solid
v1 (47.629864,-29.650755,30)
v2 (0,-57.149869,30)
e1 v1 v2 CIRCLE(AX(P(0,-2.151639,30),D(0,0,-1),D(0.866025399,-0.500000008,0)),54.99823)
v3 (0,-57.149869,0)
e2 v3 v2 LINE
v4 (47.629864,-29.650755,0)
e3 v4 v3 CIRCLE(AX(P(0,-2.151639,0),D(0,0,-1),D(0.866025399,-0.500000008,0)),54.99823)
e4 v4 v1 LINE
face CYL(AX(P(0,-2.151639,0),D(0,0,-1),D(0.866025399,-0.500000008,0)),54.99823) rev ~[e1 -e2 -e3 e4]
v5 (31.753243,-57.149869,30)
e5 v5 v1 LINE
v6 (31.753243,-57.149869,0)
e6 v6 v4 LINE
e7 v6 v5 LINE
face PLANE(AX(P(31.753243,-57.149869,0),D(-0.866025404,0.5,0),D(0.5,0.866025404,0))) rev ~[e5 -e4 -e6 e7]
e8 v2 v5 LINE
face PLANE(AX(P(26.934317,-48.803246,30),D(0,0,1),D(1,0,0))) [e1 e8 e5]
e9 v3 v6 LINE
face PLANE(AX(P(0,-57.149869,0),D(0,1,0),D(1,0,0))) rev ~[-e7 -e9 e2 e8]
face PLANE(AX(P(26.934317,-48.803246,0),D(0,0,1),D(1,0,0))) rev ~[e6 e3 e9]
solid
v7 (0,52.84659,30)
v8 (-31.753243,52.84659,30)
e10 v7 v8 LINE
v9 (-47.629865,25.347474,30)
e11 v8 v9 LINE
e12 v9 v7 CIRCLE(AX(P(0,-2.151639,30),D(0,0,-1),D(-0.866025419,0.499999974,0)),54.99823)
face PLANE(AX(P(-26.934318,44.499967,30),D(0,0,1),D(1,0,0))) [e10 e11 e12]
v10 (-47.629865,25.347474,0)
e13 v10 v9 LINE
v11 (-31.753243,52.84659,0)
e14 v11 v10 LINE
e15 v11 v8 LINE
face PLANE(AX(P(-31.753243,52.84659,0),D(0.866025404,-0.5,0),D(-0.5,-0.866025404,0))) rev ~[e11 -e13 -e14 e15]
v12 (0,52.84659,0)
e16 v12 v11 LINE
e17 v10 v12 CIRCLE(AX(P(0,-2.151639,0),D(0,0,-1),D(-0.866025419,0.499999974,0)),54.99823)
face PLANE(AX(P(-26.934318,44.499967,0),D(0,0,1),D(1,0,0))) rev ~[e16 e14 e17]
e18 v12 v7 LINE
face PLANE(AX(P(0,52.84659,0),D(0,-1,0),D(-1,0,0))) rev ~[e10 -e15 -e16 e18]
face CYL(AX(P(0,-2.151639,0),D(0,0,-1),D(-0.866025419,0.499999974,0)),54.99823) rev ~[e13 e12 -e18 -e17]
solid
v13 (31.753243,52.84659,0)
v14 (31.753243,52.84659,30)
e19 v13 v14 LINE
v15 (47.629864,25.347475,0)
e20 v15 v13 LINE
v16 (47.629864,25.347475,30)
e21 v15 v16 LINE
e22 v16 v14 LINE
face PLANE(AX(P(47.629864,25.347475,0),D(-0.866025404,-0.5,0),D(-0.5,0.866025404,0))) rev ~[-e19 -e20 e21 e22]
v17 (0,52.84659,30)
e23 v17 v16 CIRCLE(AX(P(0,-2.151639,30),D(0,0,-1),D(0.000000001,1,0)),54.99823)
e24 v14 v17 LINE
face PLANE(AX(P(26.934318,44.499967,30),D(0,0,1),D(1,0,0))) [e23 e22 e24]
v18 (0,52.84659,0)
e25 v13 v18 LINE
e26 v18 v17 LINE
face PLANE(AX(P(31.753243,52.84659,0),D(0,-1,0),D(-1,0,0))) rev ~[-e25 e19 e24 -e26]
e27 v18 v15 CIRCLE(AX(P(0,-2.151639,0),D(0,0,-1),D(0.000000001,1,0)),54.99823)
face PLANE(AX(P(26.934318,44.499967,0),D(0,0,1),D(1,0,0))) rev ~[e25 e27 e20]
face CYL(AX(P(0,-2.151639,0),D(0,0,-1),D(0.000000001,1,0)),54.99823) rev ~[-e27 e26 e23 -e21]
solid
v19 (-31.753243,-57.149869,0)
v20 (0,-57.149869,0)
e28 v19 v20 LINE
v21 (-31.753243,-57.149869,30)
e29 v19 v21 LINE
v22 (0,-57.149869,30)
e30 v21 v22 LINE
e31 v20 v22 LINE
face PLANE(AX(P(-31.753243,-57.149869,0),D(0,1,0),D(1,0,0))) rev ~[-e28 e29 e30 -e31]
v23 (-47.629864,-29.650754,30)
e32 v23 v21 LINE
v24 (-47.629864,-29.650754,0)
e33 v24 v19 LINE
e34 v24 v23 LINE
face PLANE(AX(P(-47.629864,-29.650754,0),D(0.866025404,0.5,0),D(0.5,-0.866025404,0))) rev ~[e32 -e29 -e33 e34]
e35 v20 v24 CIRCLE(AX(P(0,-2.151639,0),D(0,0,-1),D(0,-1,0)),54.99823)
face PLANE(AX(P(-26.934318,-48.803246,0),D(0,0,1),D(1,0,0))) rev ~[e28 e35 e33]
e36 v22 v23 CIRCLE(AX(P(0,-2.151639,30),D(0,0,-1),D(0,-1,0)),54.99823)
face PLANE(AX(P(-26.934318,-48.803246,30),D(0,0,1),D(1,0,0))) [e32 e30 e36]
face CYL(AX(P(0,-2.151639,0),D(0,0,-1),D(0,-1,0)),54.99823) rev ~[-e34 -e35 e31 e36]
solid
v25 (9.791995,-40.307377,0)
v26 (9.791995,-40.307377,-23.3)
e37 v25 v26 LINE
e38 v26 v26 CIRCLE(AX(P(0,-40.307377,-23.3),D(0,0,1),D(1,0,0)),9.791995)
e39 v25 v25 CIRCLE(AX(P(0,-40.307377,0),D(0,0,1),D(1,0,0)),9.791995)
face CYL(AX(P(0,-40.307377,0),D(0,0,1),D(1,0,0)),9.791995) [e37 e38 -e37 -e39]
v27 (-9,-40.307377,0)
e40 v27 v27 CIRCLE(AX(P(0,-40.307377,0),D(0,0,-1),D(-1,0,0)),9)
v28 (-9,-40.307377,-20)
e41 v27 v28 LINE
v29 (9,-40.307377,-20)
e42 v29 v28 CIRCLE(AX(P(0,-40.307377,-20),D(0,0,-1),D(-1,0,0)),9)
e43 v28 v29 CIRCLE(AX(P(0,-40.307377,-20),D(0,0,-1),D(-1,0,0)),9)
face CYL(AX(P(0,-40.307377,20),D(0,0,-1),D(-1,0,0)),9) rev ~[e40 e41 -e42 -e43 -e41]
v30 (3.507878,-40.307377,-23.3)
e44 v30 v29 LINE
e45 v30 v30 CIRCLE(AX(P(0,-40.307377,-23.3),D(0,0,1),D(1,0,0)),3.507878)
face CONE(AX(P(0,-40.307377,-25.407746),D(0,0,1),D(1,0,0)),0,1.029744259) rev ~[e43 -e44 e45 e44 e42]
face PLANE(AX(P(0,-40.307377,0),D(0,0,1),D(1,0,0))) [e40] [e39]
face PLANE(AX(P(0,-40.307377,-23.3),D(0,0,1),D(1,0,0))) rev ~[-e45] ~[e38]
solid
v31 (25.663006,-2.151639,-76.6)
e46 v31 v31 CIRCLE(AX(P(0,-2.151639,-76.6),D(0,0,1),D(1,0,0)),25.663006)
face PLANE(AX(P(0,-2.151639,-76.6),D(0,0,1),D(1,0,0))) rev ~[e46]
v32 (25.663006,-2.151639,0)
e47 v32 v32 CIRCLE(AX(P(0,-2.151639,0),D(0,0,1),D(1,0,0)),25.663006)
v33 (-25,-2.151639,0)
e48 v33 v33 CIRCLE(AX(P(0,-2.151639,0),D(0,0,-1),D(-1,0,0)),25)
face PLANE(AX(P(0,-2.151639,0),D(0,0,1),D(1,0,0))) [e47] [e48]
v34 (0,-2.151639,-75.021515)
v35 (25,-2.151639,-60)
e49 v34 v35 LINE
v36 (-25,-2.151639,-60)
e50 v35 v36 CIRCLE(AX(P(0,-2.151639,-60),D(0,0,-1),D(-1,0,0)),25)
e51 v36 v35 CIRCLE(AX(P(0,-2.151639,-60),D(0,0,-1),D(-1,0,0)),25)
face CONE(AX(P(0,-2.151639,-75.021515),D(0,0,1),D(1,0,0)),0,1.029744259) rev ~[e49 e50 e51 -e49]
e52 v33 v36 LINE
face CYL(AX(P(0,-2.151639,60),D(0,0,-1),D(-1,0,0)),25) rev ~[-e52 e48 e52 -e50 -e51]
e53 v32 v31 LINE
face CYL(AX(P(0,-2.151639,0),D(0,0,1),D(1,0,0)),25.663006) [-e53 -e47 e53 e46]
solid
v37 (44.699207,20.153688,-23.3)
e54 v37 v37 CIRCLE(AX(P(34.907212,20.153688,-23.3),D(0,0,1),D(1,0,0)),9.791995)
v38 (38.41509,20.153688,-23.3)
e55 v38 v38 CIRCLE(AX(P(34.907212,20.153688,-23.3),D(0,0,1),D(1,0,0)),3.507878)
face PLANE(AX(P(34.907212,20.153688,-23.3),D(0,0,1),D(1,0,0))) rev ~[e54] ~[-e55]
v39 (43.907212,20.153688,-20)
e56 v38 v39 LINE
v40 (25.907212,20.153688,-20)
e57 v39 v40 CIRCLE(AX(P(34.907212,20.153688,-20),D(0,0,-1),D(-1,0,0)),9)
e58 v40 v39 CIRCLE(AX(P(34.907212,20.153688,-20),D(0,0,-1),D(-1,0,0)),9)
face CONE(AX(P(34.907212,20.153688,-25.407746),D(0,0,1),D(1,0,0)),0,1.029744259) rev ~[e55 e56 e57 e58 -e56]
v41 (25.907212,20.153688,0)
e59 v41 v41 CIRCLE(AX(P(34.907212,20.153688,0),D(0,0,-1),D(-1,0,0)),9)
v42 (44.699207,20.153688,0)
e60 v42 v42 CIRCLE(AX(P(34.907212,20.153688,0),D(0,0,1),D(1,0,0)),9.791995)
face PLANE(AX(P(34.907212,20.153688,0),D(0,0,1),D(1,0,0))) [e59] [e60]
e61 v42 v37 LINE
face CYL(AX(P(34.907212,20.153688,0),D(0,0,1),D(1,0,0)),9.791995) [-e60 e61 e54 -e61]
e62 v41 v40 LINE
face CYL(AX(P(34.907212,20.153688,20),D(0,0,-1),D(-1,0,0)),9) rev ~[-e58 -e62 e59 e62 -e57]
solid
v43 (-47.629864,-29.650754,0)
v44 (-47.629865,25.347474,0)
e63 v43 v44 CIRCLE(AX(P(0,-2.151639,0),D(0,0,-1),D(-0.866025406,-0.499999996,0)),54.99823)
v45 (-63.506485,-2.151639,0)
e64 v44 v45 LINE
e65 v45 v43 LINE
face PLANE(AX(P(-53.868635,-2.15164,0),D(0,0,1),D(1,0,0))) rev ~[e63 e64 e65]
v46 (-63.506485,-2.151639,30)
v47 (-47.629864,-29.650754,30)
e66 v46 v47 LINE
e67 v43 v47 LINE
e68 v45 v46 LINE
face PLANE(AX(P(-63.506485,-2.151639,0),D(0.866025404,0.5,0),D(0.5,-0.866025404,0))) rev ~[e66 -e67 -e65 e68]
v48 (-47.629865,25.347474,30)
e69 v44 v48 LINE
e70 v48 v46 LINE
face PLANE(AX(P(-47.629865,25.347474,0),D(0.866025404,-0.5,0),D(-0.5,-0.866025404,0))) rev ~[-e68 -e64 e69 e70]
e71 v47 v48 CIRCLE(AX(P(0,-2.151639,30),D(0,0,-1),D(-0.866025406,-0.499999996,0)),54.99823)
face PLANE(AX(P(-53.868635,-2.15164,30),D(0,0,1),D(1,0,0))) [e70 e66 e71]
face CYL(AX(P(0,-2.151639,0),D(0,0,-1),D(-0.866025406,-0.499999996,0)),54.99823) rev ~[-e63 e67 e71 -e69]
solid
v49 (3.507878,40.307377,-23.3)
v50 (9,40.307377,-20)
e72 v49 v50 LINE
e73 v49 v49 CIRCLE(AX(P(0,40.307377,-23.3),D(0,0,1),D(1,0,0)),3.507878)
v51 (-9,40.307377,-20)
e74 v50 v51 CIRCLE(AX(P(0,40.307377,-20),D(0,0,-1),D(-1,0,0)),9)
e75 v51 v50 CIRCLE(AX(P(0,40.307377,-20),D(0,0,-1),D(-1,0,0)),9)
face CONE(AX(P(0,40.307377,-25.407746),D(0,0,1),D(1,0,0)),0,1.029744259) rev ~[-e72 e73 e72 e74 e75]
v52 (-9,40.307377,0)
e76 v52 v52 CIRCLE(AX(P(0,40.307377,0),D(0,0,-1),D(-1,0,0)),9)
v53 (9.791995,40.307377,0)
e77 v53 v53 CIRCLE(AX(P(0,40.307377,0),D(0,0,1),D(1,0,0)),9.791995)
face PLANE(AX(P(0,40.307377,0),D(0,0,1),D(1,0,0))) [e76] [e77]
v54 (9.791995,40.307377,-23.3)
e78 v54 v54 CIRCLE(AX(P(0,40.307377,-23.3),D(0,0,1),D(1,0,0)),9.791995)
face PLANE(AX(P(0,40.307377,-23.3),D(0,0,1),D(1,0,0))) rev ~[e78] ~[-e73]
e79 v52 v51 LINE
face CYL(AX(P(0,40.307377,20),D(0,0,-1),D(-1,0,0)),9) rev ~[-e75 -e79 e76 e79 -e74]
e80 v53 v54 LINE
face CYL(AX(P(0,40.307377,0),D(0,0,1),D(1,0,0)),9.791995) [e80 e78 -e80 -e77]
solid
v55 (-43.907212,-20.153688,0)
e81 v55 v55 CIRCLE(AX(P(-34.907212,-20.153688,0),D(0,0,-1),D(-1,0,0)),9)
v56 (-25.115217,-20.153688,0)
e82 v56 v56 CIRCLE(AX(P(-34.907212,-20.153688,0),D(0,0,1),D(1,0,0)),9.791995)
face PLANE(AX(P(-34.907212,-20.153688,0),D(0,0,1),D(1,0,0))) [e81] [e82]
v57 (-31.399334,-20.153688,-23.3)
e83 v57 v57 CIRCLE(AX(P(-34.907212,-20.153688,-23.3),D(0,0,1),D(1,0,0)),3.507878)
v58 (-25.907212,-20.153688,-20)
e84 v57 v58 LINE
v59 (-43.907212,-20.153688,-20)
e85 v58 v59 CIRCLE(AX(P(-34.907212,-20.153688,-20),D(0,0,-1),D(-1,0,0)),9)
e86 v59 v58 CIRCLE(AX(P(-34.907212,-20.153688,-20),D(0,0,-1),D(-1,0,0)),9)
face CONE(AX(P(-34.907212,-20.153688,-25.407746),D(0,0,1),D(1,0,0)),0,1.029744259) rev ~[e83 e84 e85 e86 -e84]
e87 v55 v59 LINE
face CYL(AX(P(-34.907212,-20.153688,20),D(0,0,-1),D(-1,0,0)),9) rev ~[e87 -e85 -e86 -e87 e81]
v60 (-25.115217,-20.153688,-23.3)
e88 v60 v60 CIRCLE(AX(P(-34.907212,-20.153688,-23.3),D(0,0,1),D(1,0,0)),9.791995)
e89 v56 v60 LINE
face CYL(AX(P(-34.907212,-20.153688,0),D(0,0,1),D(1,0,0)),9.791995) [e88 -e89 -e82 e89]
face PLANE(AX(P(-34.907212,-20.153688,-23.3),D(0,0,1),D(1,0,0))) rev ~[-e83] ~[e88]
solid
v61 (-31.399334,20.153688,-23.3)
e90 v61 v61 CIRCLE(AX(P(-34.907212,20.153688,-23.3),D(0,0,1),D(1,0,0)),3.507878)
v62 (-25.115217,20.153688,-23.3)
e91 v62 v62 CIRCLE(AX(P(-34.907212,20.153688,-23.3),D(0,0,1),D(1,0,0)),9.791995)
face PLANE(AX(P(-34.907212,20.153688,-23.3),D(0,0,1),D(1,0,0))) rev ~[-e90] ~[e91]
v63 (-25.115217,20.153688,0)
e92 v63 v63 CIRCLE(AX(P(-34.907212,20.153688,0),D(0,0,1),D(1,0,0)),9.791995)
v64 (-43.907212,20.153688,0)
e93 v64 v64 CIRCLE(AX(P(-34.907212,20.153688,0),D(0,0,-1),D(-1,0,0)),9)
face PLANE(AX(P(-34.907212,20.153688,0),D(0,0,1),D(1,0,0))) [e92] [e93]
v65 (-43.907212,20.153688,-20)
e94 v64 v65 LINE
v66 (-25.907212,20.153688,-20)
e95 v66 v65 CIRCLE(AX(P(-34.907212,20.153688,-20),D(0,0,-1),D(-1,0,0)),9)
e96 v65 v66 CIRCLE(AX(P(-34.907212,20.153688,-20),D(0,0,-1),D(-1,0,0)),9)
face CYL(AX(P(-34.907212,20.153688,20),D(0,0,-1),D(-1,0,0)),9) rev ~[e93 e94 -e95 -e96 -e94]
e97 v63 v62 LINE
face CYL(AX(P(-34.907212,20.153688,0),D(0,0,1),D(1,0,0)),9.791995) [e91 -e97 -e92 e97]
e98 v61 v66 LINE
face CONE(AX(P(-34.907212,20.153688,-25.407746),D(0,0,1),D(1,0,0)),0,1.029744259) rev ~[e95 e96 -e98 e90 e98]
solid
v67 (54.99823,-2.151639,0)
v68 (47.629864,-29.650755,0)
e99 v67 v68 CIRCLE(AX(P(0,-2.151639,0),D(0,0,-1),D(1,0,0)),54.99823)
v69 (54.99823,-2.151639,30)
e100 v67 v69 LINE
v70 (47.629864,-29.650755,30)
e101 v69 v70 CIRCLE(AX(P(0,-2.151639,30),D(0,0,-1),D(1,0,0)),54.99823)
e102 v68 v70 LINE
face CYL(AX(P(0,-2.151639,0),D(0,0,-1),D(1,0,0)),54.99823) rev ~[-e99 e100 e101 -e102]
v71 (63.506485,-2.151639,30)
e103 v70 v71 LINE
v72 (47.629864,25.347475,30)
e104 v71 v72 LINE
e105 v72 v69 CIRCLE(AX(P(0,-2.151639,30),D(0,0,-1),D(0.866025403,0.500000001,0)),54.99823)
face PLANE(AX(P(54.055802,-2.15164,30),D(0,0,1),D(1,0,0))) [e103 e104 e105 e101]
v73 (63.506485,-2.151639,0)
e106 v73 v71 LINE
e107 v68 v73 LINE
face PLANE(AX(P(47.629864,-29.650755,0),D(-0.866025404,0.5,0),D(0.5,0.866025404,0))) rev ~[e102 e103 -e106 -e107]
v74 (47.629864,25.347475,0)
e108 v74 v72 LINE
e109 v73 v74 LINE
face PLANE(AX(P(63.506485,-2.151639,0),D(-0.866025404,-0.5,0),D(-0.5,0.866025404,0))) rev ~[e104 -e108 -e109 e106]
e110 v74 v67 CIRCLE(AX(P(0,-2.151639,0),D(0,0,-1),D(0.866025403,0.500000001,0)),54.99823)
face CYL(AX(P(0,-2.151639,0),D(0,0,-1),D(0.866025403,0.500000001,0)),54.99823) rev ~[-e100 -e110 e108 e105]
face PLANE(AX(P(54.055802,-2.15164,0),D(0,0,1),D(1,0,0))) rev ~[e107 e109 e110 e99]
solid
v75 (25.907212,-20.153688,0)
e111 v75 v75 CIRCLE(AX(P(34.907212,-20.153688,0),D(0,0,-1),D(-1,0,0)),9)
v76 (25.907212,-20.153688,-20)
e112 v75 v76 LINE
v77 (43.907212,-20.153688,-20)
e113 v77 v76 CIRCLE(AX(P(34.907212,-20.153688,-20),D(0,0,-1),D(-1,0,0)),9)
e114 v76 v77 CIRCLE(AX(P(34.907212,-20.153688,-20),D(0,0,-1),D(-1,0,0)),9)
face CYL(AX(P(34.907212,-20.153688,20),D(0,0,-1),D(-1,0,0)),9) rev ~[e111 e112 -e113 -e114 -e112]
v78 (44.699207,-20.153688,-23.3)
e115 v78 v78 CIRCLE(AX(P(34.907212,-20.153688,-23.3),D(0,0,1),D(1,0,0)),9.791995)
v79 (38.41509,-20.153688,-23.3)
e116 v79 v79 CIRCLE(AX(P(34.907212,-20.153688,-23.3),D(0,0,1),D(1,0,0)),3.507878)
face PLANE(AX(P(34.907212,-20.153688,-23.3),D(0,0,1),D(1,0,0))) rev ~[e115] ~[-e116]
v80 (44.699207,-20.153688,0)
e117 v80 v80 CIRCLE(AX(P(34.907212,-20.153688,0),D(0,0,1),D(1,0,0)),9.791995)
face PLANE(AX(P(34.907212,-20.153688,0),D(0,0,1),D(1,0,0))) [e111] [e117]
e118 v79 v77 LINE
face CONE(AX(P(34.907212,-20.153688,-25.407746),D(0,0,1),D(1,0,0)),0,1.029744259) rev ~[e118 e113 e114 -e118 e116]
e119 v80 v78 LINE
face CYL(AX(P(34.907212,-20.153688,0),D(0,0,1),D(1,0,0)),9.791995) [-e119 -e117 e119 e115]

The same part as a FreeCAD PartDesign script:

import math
import FreeCAD as App
import Part
import Sketcher
from FreeCAD import Vector
Q = App.Units.Quantity

doc = App.newDocument("Part")
body = doc.addObject("PartDesign::Body", "Body")

sketch1 = body.newObject("Sketcher::SketchObject", "Sketch")
sketch1.AttachmentSupport = (doc.getObject("XY_Plane"), [""])
sketch1.MapMode = "FlatFace"
sketch1.addGeometry(Part.Circle(Vector(0, -2, 0), Vector(0, 0, 1), 26), False)
sketch1.addConstraint(Sketcher.Constraint("PointOnObject", 0, 3, -2))
sketch1.addConstraint(Sketcher.Constraint("Diameter", 0, Q("51.326012 mm")))
sketch1.addConstraint(Sketcher.Constraint("DistanceY", 0, 3, -1, 1, Q("2.151639 mm")))
pad1 = body.newObject("PartDesign::Pad", "Pad")
pad1.Profile = sketch1
pad1.Length = 76.6
pad1.Reversed = True

sketch2 = body.newObject("Sketcher::SketchObject", "Sketch001")
sketch2.AttachmentSupport = (doc.getObject("XY_Plane"), [""])
sketch2.MapMode = "FlatFace"
sketch2.addGeometry(Part.Circle(Vector(0, -2, 0), Vector(0, 0, 1), 25), False)
sketch2.addConstraint(Sketcher.Constraint("PointOnObject", 0, 3, -2))
sketch2.addConstraint(Sketcher.Constraint("Diameter", 0, Q("50 mm")))
sketch2.addConstraint(Sketcher.Constraint("DistanceY", 0, 3, -1, 1, Q("2.151639 mm")))
doc.recompute()
hole = body.newObject("PartDesign::Hole", "Hole")
hole.Profile = sketch2
hole.ThreadType = "None"
hole.Diameter = 50
hole.DepthType = "Dimension"
hole.Depth = 60
hole.DrillPoint = "Angled"
hole.DrillPointAngle = 118
body2 = doc.addObject("PartDesign::Body", "Body001")

sketch3 = body2.newObject("Sketcher::SketchObject", "Sketch002")
sketch3.AttachmentSupport = (doc.getObject("XY_Plane001"), [""])
sketch3.MapMode = "FlatFace"
sketch3.addGeometry(Part.ArcOfCircle(Part.Circle(Vector(0, -2, 0), Vector(0, 0, 1), 55), math.radians(90), math.radians(150)), False)
sketch3.addGeometry(Part.LineSegment(Vector(0, 53, 0), Vector(-32, 53, 0)), False)
sketch3.addGeometry(Part.LineSegment(Vector(-32, 53, 0), Vector(-48, 25, 0)), False)
sketch3.addConstraint(Sketcher.Constraint("Tangent", 0, 1, 1, 1))
sketch3.addConstraint(Sketcher.Constraint("Coincident", 1, 2, 2, 1))
sketch3.addConstraint(Sketcher.Constraint("Tangent", 2, 2, 0, 2))
sketch3.addConstraint(Sketcher.Constraint("Horizontal", 1))
sketch3.addConstraint(Sketcher.Constraint("PointOnObject", 0, 3, -2))
sketch3.addConstraint(Sketcher.Constraint("Angle", 2, Q("-120 deg")))
sketch3.addConstraint(Sketcher.Constraint("Radius", 0, Q("54.99823 mm")))
sketch3.addConstraint(Sketcher.Constraint("DistanceY", 0, 3, -1, 1, Q("2.151639 mm")))
pad2 = body2.newObject("PartDesign::Pad", "Pad001")
pad2.Profile = sketch3
pad2.Length = 30
body3 = doc.addObject("PartDesign::Body", "Body002")

sketch4 = body3.newObject("Sketcher::SketchObject", "Sketch003")
sketch4.AttachmentSupport = (doc.getObject("XY_Plane002"), [""])
sketch4.MapMode = "FlatFace"
sketch4.addGeometry(Part.ArcOfCircle(Part.Circle(Vector(0, -2, 0), Vector(0, 0, 1), 55), math.radians(150), math.radians(210)), False)
sketch4.addGeometry(Part.LineSegment(Vector(-48, 25, 0), Vector(-64, -2, 0)), False)
sketch4.addGeometry(Part.LineSegment(Vector(-64, -2, 0), Vector(-48, -30, 0)), False)
sketch4.addConstraint(Sketcher.Constraint("Tangent", 0, 1, 1, 1))
sketch4.addConstraint(Sketcher.Constraint("Coincident", 1, 2, 2, 1))
sketch4.addConstraint(Sketcher.Constraint("Tangent", 2, 2, 0, 2))
sketch4.addConstraint(Sketcher.Constraint("PointOnObject", 0, 3, -2))
sketch4.addConstraint(Sketcher.Constraint("Horizontal", 0, 3, 1, 2))
sketch4.addConstraint(Sketcher.Constraint("Angle", 1, Q("-120 deg")))
sketch4.addConstraint(Sketcher.Constraint("Radius", 0, Q("54.99823 mm")))
sketch4.addConstraint(Sketcher.Constraint("DistanceY", 0, 3, -1, 1, Q("2.151639 mm")))
pad3 = body3.newObject("PartDesign::Pad", "Pad002")
pad3.Profile = sketch4
pad3.Length = 30
body4 = doc.addObject("PartDesign::Body", "Body003")

sketch5 = body4.newObject("Sketcher::SketchObject", "Sketch004")
sketch5.AttachmentSupport = (doc.getObject("XY_Plane003"), [""])
sketch5.MapMode = "FlatFace"
sketch5.addGeometry(Part.LineSegment(Vector(-32, -57, 0), Vector(0, -57, 0)), False)
sketch5.addGeometry(Part.ArcOfCircle(Part.Circle(Vector(0, -2, 0), Vector(0, 0, 1), 55), math.radians(-150), math.radians(-90)), False)
sketch5.addGeometry(Part.LineSegment(Vector(-48, -30, 0), Vector(-32, -57, 0)), False)
sketch5.addConstraint(Sketcher.Constraint("Tangent", 0, 2, 1, 2))
sketch5.addConstraint(Sketcher.Constraint("Tangent", 1, 1, 2, 1))
sketch5.addConstraint(Sketcher.Constraint("Coincident", 2, 2, 0, 1))
sketch5.addConstraint(Sketcher.Constraint("Horizontal", 0))
sketch5.addConstraint(Sketcher.Constraint("PointOnObject", 1, 3, -2))
sketch5.addConstraint(Sketcher.Constraint("Angle", 2, Q("-60 deg")))
sketch5.addConstraint(Sketcher.Constraint("Radius", 1, Q("54.99823 mm")))
sketch5.addConstraint(Sketcher.Constraint("DistanceY", 1, 3, -1, 1, Q("2.151639 mm")))
pad4 = body4.newObject("PartDesign::Pad", "Pad003")
pad4.Profile = sketch5
pad4.Length = 30
body5 = doc.addObject("PartDesign::Body", "Body004")

sketch6 = body5.newObject("Sketcher::SketchObject", "Sketch005")
sketch6.AttachmentSupport = (doc.getObject("XY_Plane004"), [""])
sketch6.MapMode = "FlatFace"
sketch6.addGeometry(Part.LineSegment(Vector(32, -57, 0), Vector(48, -30, 0)), False)
sketch6.addGeometry(Part.ArcOfCircle(Part.Circle(Vector(0, -2, 0), Vector(0, 0, 1), 55), math.radians(-90), math.radians(-30)), False)
sketch6.addGeometry(Part.LineSegment(Vector(0, -57, 0), Vector(32, -57, 0)), False)
sketch6.addConstraint(Sketcher.Constraint("Tangent", 0, 2, 1, 2))
sketch6.addConstraint(Sketcher.Constraint("Tangent", 1, 1, 2, 1))
sketch6.addConstraint(Sketcher.Constraint("Coincident", 2, 2, 0, 1))
sketch6.addConstraint(Sketcher.Constraint("Horizontal", 2))
sketch6.addConstraint(Sketcher.Constraint("PointOnObject", 1, 3, -2))
sketch6.addConstraint(Sketcher.Constraint("Angle", 0, Q("60 deg")))
sketch6.addConstraint(Sketcher.Constraint("Radius", 1, Q("54.99823 mm")))
sketch6.addConstraint(Sketcher.Constraint("DistanceY", 1, 3, -1, 1, Q("2.151639 mm")))
pad5 = body5.newObject("PartDesign::Pad", "Pad004")
pad5.Profile = sketch6
pad5.Length = 30
body6 = doc.addObject("PartDesign::Body", "Body005")

sketch7 = body6.newObject("Sketcher::SketchObject", "Sketch006")
sketch7.AttachmentSupport = (doc.getObject("XY_Plane005"), [""])
sketch7.MapMode = "FlatFace"
sketch7.addGeometry(Part.ArcOfCircle(Part.Circle(Vector(0, -2, 0), Vector(0, 0, 1), 55), math.radians(30), math.radians(90)), False)
sketch7.addGeometry(Part.LineSegment(Vector(48, 25, 0), Vector(32, 53, 0)), False)
sketch7.addGeometry(Part.LineSegment(Vector(32, 53, 0), Vector(0, 53, 0)), False)
sketch7.addConstraint(Sketcher.Constraint("Tangent", 0, 1, 1, 1))
sketch7.addConstraint(Sketcher.Constraint("Coincident", 1, 2, 2, 1))
sketch7.addConstraint(Sketcher.Constraint("Tangent", 2, 2, 0, 2))
sketch7.addConstraint(Sketcher.Constraint("Horizontal", 2))
sketch7.addConstraint(Sketcher.Constraint("PointOnObject", 0, 3, -2))
sketch7.addConstraint(Sketcher.Constraint("Angle", 1, Q("120 deg")))
sketch7.addConstraint(Sketcher.Constraint("Radius", 0, Q("54.99823 mm")))
sketch7.addConstraint(Sketcher.Constraint("DistanceY", 0, 3, -1, 1, Q("2.151639 mm")))
pad6 = body6.newObject("PartDesign::Pad", "Pad005")
pad6.Profile = sketch7
pad6.Length = 30
body7 = doc.addObject("PartDesign::Body", "Body006")

sketch8 = body7.newObject("Sketcher::SketchObject", "Sketch007")
sketch8.AttachmentSupport = (doc.getObject("XY_Plane006"), [""])
sketch8.MapMode = "FlatFace"
sketch8.addGeometry(Part.ArcOfCircle(Part.Circle(Vector(0, -2, 0), Vector(0, 0, 1), 55), math.radians(0), math.radians(30)), False)
sketch8.addGeometry(Part.ArcOfCircle(Part.Circle(Vector(0, -2, 0), Vector(0, 0, 1), 55), math.radians(-30), math.radians(0)), False)
sketch8.addGeometry(Part.LineSegment(Vector(48, -30, 0), Vector(64, -2, 0)), False)
sketch8.addGeometry(Part.LineSegment(Vector(64, -2, 0), Vector(48, 25, 0)), False)
sketch8.addConstraint(Sketcher.Constraint("Tangent", 0, 1, 1, 2))
sketch8.addConstraint(Sketcher.Constraint("Tangent", 1, 1, 2, 1))
sketch8.addConstraint(Sketcher.Constraint("Coincident", 2, 2, 3, 1))
sketch8.addConstraint(Sketcher.Constraint("Tangent", 3, 2, 0, 2))
sketch8.addConstraint(Sketcher.Constraint("Equal", 0, 1))
sketch8.addConstraint(Sketcher.Constraint("PointOnObject", 0, 3, -2))
sketch8.addConstraint(Sketcher.Constraint("Horizontal", 1, 3, 0, 1))
sketch8.addConstraint(Sketcher.Constraint("Horizontal", 0, 1, 2, 2))
sketch8.addConstraint(Sketcher.Constraint("Angle", 2, Q("60 deg")))
sketch8.addConstraint(Sketcher.Constraint("Radius", 0, Q("54.99823 mm")))
sketch8.addConstraint(Sketcher.Constraint("DistanceY", 0, 3, -1, 1, Q("2.151639 mm")))
pad7 = body7.newObject("PartDesign::Pad", "Pad006")
pad7.Profile = sketch8
pad7.Length = 30
body8 = doc.addObject("PartDesign::Body", "Body007")

sketch9 = body8.newObject("Sketcher::SketchObject", "Sketch008")
sketch9.AttachmentSupport = (doc.getObject("XY_Plane007"), [""])
sketch9.MapMode = "FlatFace"
sketch9.addGeometry(Part.Circle(Vector(0, 40, 0), Vector(0, 0, 1), 10), False)
sketch9.addConstraint(Sketcher.Constraint("PointOnObject", 0, 3, -2))
sketch9.addConstraint(Sketcher.Constraint("Diameter", 0, Q("19.58399 mm")))
sketch9.addConstraint(Sketcher.Constraint("DistanceY", -1, 1, 0, 3, Q("40.307377 mm")))
pad8 = body8.newObject("PartDesign::Pad", "Pad007")
pad8.Profile = sketch9
pad8.Length = 23.3
pad8.Reversed = True

sketch10 = body8.newObject("Sketcher::SketchObject", "Sketch009")
sketch10.AttachmentSupport = (doc.getObject("XY_Plane007"), [""])
sketch10.MapMode = "FlatFace"
sketch10.addGeometry(Part.Circle(Vector(-35, 20, 0), Vector(0, 0, 1), 9), False)
sketch10.addGeometry(Part.Circle(Vector(0, 40, 0), Vector(0, 0, 1), 9), False)
sketch10.addGeometry(Part.Circle(Vector(35, 20, 0), Vector(0, 0, 1), 9), False)
sketch10.addGeometry(Part.Circle(Vector(35, -20, 0), Vector(0, 0, 1), 9), False)
sketch10.addGeometry(Part.Circle(Vector(0, -40, 0), Vector(0, 0, 1), 9), False)
sketch10.addGeometry(Part.Circle(Vector(-35, -20, 0), Vector(0, 0, 1), 9), False)
sketch10.addConstraint(Sketcher.Constraint("Equal", 0, 1))
sketch10.addConstraint(Sketcher.Constraint("Equal", 1, 2))
sketch10.addConstraint(Sketcher.Constraint("Equal", 2, 3))
sketch10.addConstraint(Sketcher.Constraint("Equal", 3, 4))
sketch10.addConstraint(Sketcher.Constraint("Equal", 4, 5))
sketch10.addConstraint(Sketcher.Constraint("Symmetric", 0, 3, 3, 3, -1, 1))
sketch10.addConstraint(Sketcher.Constraint("Symmetric", 1, 3, 4, 3, -1, 1))
sketch10.addConstraint(Sketcher.Constraint("Symmetric", 2, 3, 5, 3, -1, 1))
sketch10.addConstraint(Sketcher.Constraint("Symmetric", 0, 3, 2, 3, -2))
sketch10.addConstraint(Sketcher.Constraint("PointOnObject", 1, 3, -2))
sketch10.addConstraint(Sketcher.Constraint("Diameter", 0, Q("18 mm")))
sketch10.addConstraint(Sketcher.Constraint("DistanceY", -1, 1, 0, 3, Q("20.153688 mm")))
sketch10.addConstraint(Sketcher.Constraint("DistanceY", 0, 3, 1, 3, Q("20.153688 mm")))
sketch10.addConstraint(Sketcher.Constraint("DistanceX", 0, 3, -1, 1, Q("34.907212 mm")))
doc.recompute()
hole2 = body8.newObject("PartDesign::Hole", "Hole001")
hole2.Profile = sketch10
hole2.ThreadType = "None"
hole2.Diameter = 18
hole2.DepthType = "Dimension"
hole2.Depth = 20
hole2.DrillPoint = "Angled"
hole2.DrillPointAngle = 118
body9 = doc.addObject("PartDesign::Body", "Body008")

sketch11 = body9.newObject("Sketcher::SketchObject", "Sketch010")
sketch11.AttachmentSupport = (doc.getObject("XY_Plane008"), [""])
sketch11.MapMode = "FlatFace"
sketch11.addGeometry(Part.Circle(Vector(-35, 20, 0), Vector(0, 0, 1), 10), False)
sketch11.addConstraint(Sketcher.Constraint("Diameter", 0, Q("19.58399 mm")))
sketch11.addConstraint(Sketcher.Constraint("DistanceY", -1, 1, 0, 3, Q("20.153688 mm")))
sketch11.addConstraint(Sketcher.Constraint("DistanceX", 0, 3, -1, 1, Q("34.907212 mm")))
pad9 = body9.newObject("PartDesign::Pad", "Pad008")
pad9.Profile = sketch11
pad9.Length = 23.3
pad9.Reversed = True

sketch12 = body9.newObject("Sketcher::SketchObject", "Sketch011")
sketch12.AttachmentSupport = (doc.getObject("XY_Plane008"), [""])
sketch12.MapMode = "FlatFace"
sketch12.addGeometry(Part.Circle(Vector(-35, 20, 0), Vector(0, 0, 1), 9), False)
sketch12.addGeometry(Part.Circle(Vector(0, 40, 0), Vector(0, 0, 1), 9), False)
sketch12.addGeometry(Part.Circle(Vector(35, 20, 0), Vector(0, 0, 1), 9), False)
sketch12.addGeometry(Part.Circle(Vector(35, -20, 0), Vector(0, 0, 1), 9), False)
sketch12.addGeometry(Part.Circle(Vector(0, -40, 0), Vector(0, 0, 1), 9), False)
sketch12.addGeometry(Part.Circle(Vector(-35, -20, 0), Vector(0, 0, 1), 9), False)
sketch12.addConstraint(Sketcher.Constraint("Equal", 0, 1))
sketch12.addConstraint(Sketcher.Constraint("Equal", 1, 2))
sketch12.addConstraint(Sketcher.Constraint("Equal", 2, 3))
sketch12.addConstraint(Sketcher.Constraint("Equal", 3, 4))
sketch12.addConstraint(Sketcher.Constraint("Equal", 4, 5))
sketch12.addConstraint(Sketcher.Constraint("Symmetric", 0, 3, 3, 3, -1, 1))
sketch12.addConstraint(Sketcher.Constraint("Symmetric", 1, 3, 4, 3, -1, 1))
sketch12.addConstraint(Sketcher.Constraint("Symmetric", 2, 3, 5, 3, -1, 1))
sketch12.addConstraint(Sketcher.Constraint("Symmetric", 0, 3, 2, 3, -2))
sketch12.addConstraint(Sketcher.Constraint("PointOnObject", 1, 3, -2))
sketch12.addConstraint(Sketcher.Constraint("Diameter", 0, Q("18 mm")))
sketch12.addConstraint(Sketcher.Constraint("DistanceY", -1, 1, 0, 3, Q("20.153688 mm")))
sketch12.addConstraint(Sketcher.Constraint("DistanceY", 0, 3, 1, 3, Q("20.153688 mm")))
sketch12.addConstraint(Sketcher.Constraint("DistanceX", 0, 3, -1, 1, Q("34.907212 mm")))
doc.recompute()
hole3 = body9.newObject("PartDesign::Hole", "Hole002")
hole3.Profile = sketch12
hole3.ThreadType = "None"
hole3.Diameter = 18
hole3.DepthType = "Dimension"
hole3.Depth = 20
hole3.DrillPoint = "Angled"
hole3.DrillPointAngle = 118
body10 = doc.addObject("PartDesign::Body", "Body009")

sketch13 = body10.newObject("Sketcher::SketchObject", "Sketch012")
sketch13.AttachmentSupport = (doc.getObject("XY_Plane009"), [""])
sketch13.MapMode = "FlatFace"
sketch13.addGeometry(Part.Circle(Vector(-35, -20, 0), Vector(0, 0, 1), 10), False)
sketch13.addConstraint(Sketcher.Constraint("Diameter", 0, Q("19.58399 mm")))
sketch13.addConstraint(Sketcher.Constraint("DistanceY", 0, 3, -1, 1, Q("20.153688 mm")))
sketch13.addConstraint(Sketcher.Constraint("DistanceX", 0, 3, -1, 1, Q("34.907212 mm")))
pad10 = body10.newObject("PartDesign::Pad", "Pad009")
pad10.Profile = sketch13
pad10.Length = 23.3
pad10.Reversed = True

sketch14 = body10.newObject("Sketcher::SketchObject", "Sketch013")
sketch14.AttachmentSupport = (doc.getObject("XY_Plane009"), [""])
sketch14.MapMode = "FlatFace"
sketch14.addGeometry(Part.Circle(Vector(-35, 20, 0), Vector(0, 0, 1), 9), False)
sketch14.addGeometry(Part.Circle(Vector(0, 40, 0), Vector(0, 0, 1), 9), False)
sketch14.addGeometry(Part.Circle(Vector(35, 20, 0), Vector(0, 0, 1), 9), False)
sketch14.addGeometry(Part.Circle(Vector(35, -20, 0), Vector(0, 0, 1), 9), False)
sketch14.addGeometry(Part.Circle(Vector(0, -40, 0), Vector(0, 0, 1), 9), False)
sketch14.addGeometry(Part.Circle(Vector(-35, -20, 0), Vector(0, 0, 1), 9), False)
sketch14.addConstraint(Sketcher.Constraint("Equal", 0, 1))
sketch14.addConstraint(Sketcher.Constraint("Equal", 1, 2))
sketch14.addConstraint(Sketcher.Constraint("Equal", 2, 3))
sketch14.addConstraint(Sketcher.Constraint("Equal", 3, 4))
sketch14.addConstraint(Sketcher.Constraint("Equal", 4, 5))
sketch14.addConstraint(Sketcher.Constraint("Symmetric", 0, 3, 3, 3, -1, 1))
sketch14.addConstraint(Sketcher.Constraint("Symmetric", 1, 3, 4, 3, -1, 1))
sketch14.addConstraint(Sketcher.Constraint("Symmetric", 2, 3, 5, 3, -1, 1))
sketch14.addConstraint(Sketcher.Constraint("Symmetric", 0, 3, 2, 3, -2))
sketch14.addConstraint(Sketcher.Constraint("PointOnObject", 1, 3, -2))
sketch14.addConstraint(Sketcher.Constraint("Diameter", 0, Q("18 mm")))
sketch14.addConstraint(Sketcher.Constraint("DistanceY", -1, 1, 0, 3, Q("20.153688 mm")))
sketch14.addConstraint(Sketcher.Constraint("DistanceY", 0, 3, 1, 3, Q("20.153688 mm")))
sketch14.addConstraint(Sketcher.Constraint("DistanceX", 0, 3, -1, 1, Q("34.907212 mm")))
doc.recompute()
hole4 = body10.newObject("PartDesign::Hole", "Hole003")
hole4.Profile = sketch14
hole4.ThreadType = "None"
hole4.Diameter = 18
hole4.DepthType = "Dimension"
hole4.Depth = 20
hole4.DrillPoint = "Angled"
hole4.DrillPointAngle = 118
body11 = doc.addObject("PartDesign::Body", "Body010")

sketch15 = body11.newObject("Sketcher::SketchObject", "Sketch014")
sketch15.AttachmentSupport = (doc.getObject("XY_Plane010"), [""])
sketch15.MapMode = "FlatFace"
sketch15.addGeometry(Part.Circle(Vector(0, -40, 0), Vector(0, 0, 1), 10), False)
sketch15.addConstraint(Sketcher.Constraint("PointOnObject", 0, 3, -2))
sketch15.addConstraint(Sketcher.Constraint("Diameter", 0, Q("19.58399 mm")))
sketch15.addConstraint(Sketcher.Constraint("DistanceY", 0, 3, -1, 1, Q("40.307377 mm")))
pad11 = body11.newObject("PartDesign::Pad", "Pad010")
pad11.Profile = sketch15
pad11.Length = 23.3
pad11.Reversed = True

sketch16 = body11.newObject("Sketcher::SketchObject", "Sketch015")
sketch16.AttachmentSupport = (doc.getObject("XY_Plane010"), [""])
sketch16.MapMode = "FlatFace"
sketch16.addGeometry(Part.Circle(Vector(-35, 20, 0), Vector(0, 0, 1), 9), False)
sketch16.addGeometry(Part.Circle(Vector(0, 40, 0), Vector(0, 0, 1), 9), False)
sketch16.addGeometry(Part.Circle(Vector(35, 20, 0), Vector(0, 0, 1), 9), False)
sketch16.addGeometry(Part.Circle(Vector(35, -20, 0), Vector(0, 0, 1), 9), False)
sketch16.addGeometry(Part.Circle(Vector(0, -40, 0), Vector(0, 0, 1), 9), False)
sketch16.addGeometry(Part.Circle(Vector(-35, -20, 0), Vector(0, 0, 1), 9), False)
sketch16.addConstraint(Sketcher.Constraint("Equal", 0, 1))
sketch16.addConstraint(Sketcher.Constraint("Equal", 1, 2))
sketch16.addConstraint(Sketcher.Constraint("Equal", 2, 3))
sketch16.addConstraint(Sketcher.Constraint("Equal", 3, 4))
sketch16.addConstraint(Sketcher.Constraint("Equal", 4, 5))
sketch16.addConstraint(Sketcher.Constraint("Symmetric", 0, 3, 3, 3, -1, 1))
sketch16.addConstraint(Sketcher.Constraint("Symmetric", 1, 3, 4, 3, -1, 1))
sketch16.addConstraint(Sketcher.Constraint("Symmetric", 2, 3, 5, 3, -1, 1))
sketch16.addConstraint(Sketcher.Constraint("Symmetric", 0, 3, 2, 3, -2))
sketch16.addConstraint(Sketcher.Constraint("PointOnObject", 1, 3, -2))
sketch16.addConstraint(Sketcher.Constraint("Diameter", 0, Q("18 mm")))
sketch16.addConstraint(Sketcher.Constraint("DistanceY", -1, 1, 0, 3, Q("20.153688 mm")))
sketch16.addConstraint(Sketcher.Constraint("DistanceY", 0, 3, 1, 3, Q("20.153688 mm")))
sketch16.addConstraint(Sketcher.Constraint("DistanceX", 0, 3, -1, 1, Q("34.907212 mm")))
doc.recompute()
hole5 = body11.newObject("PartDesign::Hole", "Hole004")
hole5.Profile = sketch16
hole5.ThreadType = "None"
hole5.Diameter = 18
hole5.DepthType = "Dimension"
hole5.Depth = 20
hole5.DrillPoint = "Angled"
hole5.DrillPointAngle = 118
body12 = doc.addObject("PartDesign::Body", "Body011")

sketch17 = body12.newObject("Sketcher::SketchObject", "Sketch016")
sketch17.AttachmentSupport = (doc.getObject("XY_Plane011"), [""])
sketch17.MapMode = "FlatFace"
sketch17.addGeometry(Part.Circle(Vector(35, -20, 0), Vector(0, 0, 1), 10), False)
sketch17.addConstraint(Sketcher.Constraint("Diameter", 0, Q("19.58399 mm")))
sketch17.addConstraint(Sketcher.Constraint("DistanceY", 0, 3, -1, 1, Q("20.153688 mm")))
sketch17.addConstraint(Sketcher.Constraint("DistanceX", -1, 1, 0, 3, Q("34.907212 mm")))
pad12 = body12.newObject("PartDesign::Pad", "Pad011")
pad12.Profile = sketch17
pad12.Length = 23.3
pad12.Reversed = True

sketch18 = body12.newObject("Sketcher::SketchObject", "Sketch017")
sketch18.AttachmentSupport = (doc.getObject("XY_Plane011"), [""])
sketch18.MapMode = "FlatFace"
sketch18.addGeometry(Part.Circle(Vector(-35, 20, 0), Vector(0, 0, 1), 9), False)
sketch18.addGeometry(Part.Circle(Vector(0, 40, 0), Vector(0, 0, 1), 9), False)
sketch18.addGeometry(Part.Circle(Vector(35, 20, 0), Vector(0, 0, 1), 9), False)
sketch18.addGeometry(Part.Circle(Vector(35, -20, 0), Vector(0, 0, 1), 9), False)
sketch18.addGeometry(Part.Circle(Vector(0, -40, 0), Vector(0, 0, 1), 9), False)
sketch18.addGeometry(Part.Circle(Vector(-35, -20, 0), Vector(0, 0, 1), 9), False)
sketch18.addConstraint(Sketcher.Constraint("Equal", 0, 1))
sketch18.addConstraint(Sketcher.Constraint("Equal", 1, 2))
sketch18.addConstraint(Sketcher.Constraint("Equal", 2, 3))
sketch18.addConstraint(Sketcher.Constraint("Equal", 3, 4))
sketch18.addConstraint(Sketcher.Constraint("Equal", 4, 5))
sketch18.addConstraint(Sketcher.Constraint("Symmetric", 0, 3, 3, 3, -1, 1))
sketch18.addConstraint(Sketcher.Constraint("Symmetric", 1, 3, 4, 3, -1, 1))
sketch18.addConstraint(Sketcher.Constraint("Symmetric", 2, 3, 5, 3, -1, 1))
sketch18.addConstraint(Sketcher.Constraint("Symmetric", 0, 3, 2, 3, -2))
sketch18.addConstraint(Sketcher.Constraint("PointOnObject", 1, 3, -2))
sketch18.addConstraint(Sketcher.Constraint("Diameter", 0, Q("18 mm")))
sketch18.addConstraint(Sketcher.Constraint("DistanceY", -1, 1, 0, 3, Q("20.153688 mm")))
sketch18.addConstraint(Sketcher.Constraint("DistanceY", 0, 3, 1, 3, Q("20.153688 mm")))
sketch18.addConstraint(Sketcher.Constraint("DistanceX", 0, 3, -1, 1, Q("34.907212 mm")))
doc.recompute()
hole6 = body12.newObject("PartDesign::Hole", "Hole005")
hole6.Profile = sketch18
hole6.ThreadType = "None"
hole6.Diameter = 18
hole6.DepthType = "Dimension"
hole6.Depth = 20
hole6.DrillPoint = "Angled"
hole6.DrillPointAngle = 118
body13 = doc.addObject("PartDesign::Body", "Body012")

sketch19 = body13.newObject("Sketcher::SketchObject", "Sketch018")
sketch19.AttachmentSupport = (doc.getObject("XY_Plane012"), [""])
sketch19.MapMode = "FlatFace"
sketch19.addGeometry(Part.Circle(Vector(35, 20, 0), Vector(0, 0, 1), 10), False)
sketch19.addConstraint(Sketcher.Constraint("Diameter", 0, Q("19.58399 mm")))
sketch19.addConstraint(Sketcher.Constraint("DistanceY", -1, 1, 0, 3, Q("20.153688 mm")))
sketch19.addConstraint(Sketcher.Constraint("DistanceX", -1, 1, 0, 3, Q("34.907212 mm")))
pad13 = body13.newObject("PartDesign::Pad", "Pad012")
pad13.Profile = sketch19
pad13.Length = 23.3
pad13.Reversed = True

sketch20 = body13.newObject("Sketcher::SketchObject", "Sketch019")
sketch20.AttachmentSupport = (doc.getObject("XY_Plane012"), [""])
sketch20.MapMode = "FlatFace"
sketch20.addGeometry(Part.Circle(Vector(-35, 20, 0), Vector(0, 0, 1), 9), False)
sketch20.addGeometry(Part.Circle(Vector(0, 40, 0), Vector(0, 0, 1), 9), False)
sketch20.addGeometry(Part.Circle(Vector(35, 20, 0), Vector(0, 0, 1), 9), False)
sketch20.addGeometry(Part.Circle(Vector(35, -20, 0), Vector(0, 0, 1), 9), False)
sketch20.addGeometry(Part.Circle(Vector(0, -40, 0), Vector(0, 0, 1), 9), False)
sketch20.addGeometry(Part.Circle(Vector(-35, -20, 0), Vector(0, 0, 1), 9), False)
sketch20.addConstraint(Sketcher.Constraint("Equal", 0, 1))
sketch20.addConstraint(Sketcher.Constraint("Equal", 1, 2))
sketch20.addConstraint(Sketcher.Constraint("Equal", 2, 3))
sketch20.addConstraint(Sketcher.Constraint("Equal", 3, 4))
sketch20.addConstraint(Sketcher.Constraint("Equal", 4, 5))
sketch20.addConstraint(Sketcher.Constraint("Symmetric", 0, 3, 3, 3, -1, 1))
sketch20.addConstraint(Sketcher.Constraint("Symmetric", 1, 3, 4, 3, -1, 1))
sketch20.addConstraint(Sketcher.Constraint("Symmetric", 2, 3, 5, 3, -1, 1))
sketch20.addConstraint(Sketcher.Constraint("Symmetric", 0, 3, 2, 3, -2))
sketch20.addConstraint(Sketcher.Constraint("PointOnObject", 1, 3, -2))
sketch20.addConstraint(Sketcher.Constraint("Diameter", 0, Q("18 mm")))
sketch20.addConstraint(Sketcher.Constraint("DistanceY", -1, 1, 0, 3, Q("20.153688 mm")))
sketch20.addConstraint(Sketcher.Constraint("DistanceY", 0, 3, 1, 3, Q("20.153688 mm")))
sketch20.addConstraint(Sketcher.Constraint("DistanceX", 0, 3, -1, 1, Q("34.907212 mm")))
doc.recompute()
hole7 = body13.newObject("PartDesign::Hole", "Hole006")
hole7.Profile = sketch20
hole7.ThreadType = "None"
hole7.Diameter = 18
hole7.DepthType = "Dimension"
hole7.Depth = 20
hole7.DrillPoint = "Angled"
hole7.DrillPointAngle = 118

doc.recompute()
